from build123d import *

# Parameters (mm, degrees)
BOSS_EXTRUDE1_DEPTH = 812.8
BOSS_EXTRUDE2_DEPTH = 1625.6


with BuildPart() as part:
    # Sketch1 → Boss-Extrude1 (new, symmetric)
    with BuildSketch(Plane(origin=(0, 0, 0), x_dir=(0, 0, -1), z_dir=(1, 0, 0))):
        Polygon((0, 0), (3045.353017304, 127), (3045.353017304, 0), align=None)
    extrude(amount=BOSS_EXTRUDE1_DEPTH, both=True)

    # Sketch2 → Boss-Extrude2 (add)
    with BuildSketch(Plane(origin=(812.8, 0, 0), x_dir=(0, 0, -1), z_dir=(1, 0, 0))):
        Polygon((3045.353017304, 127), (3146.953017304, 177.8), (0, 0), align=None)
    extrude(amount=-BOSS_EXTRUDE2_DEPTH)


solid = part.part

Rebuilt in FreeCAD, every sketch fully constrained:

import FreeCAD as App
import Part
import Sketcher
Q = App.Units.Quantity

doc = App.newDocument("Part")
params = doc.addObject("Spreadsheet::Sheet", "Params")
for row, (alias, value) in enumerate([
    ("sketch1_width", "5 in"),
    ("sketch1_length", "120 in"),
    ("pad1_length", "64 in"),
    ("sketch2_length", "120 in"),
    ("pad2_length", "64 in"),
], start=1):
    params.set(f"A{row}", alias)
    params.set(f"B{row}", "=" + value)
    params.setAlias(f"B{row}", alias)

body = doc.addObject("PartDesign::Body", "Body")

# Sketch on YZ plane
sketch1 = doc.addObject("Sketcher::SketchObject", "Sketch")
body.addObject(sketch1)
sketch1.AttachmentSupport = (doc.YZ_Plane, [""])
sketch1.MapMode = "FlatFace"
sketch1.addGeometry([
    Part.LineSegment(App.Vector(127, -3045, 0), App.Vector(0, 0, 0)),
    Part.LineSegment(App.Vector(0, 0, 0), App.Vector(0, -3045, 0)),
    Part.LineSegment(App.Vector(0, -3045, 0), App.Vector(127, -3045, 0)),
], False)
sketch1.addConstraint([
    Sketcher.Constraint("Coincident", 0, 2, 1, 1),
    Sketcher.Constraint("Coincident", 1, 2, 2, 1),
    Sketcher.Constraint("Coincident", 2, 2, 0, 1),
    Sketcher.Constraint("Vertical", 1),
    Sketcher.Constraint("Horizontal", 2),
    Sketcher.Constraint("Coincident", 0, 2, -1, 1),
    Sketcher.Constraint("DistanceX", 2, 1, 2, 2, Q("5 in")),
    Sketcher.Constraint("Distance", 0, Q("120 in")),
])
sketch1.setExpression("Constraints[6]", "Params.sketch1_width")
sketch1.setExpression("Constraints[7]", "Params.sketch1_length")
pad1 = doc.addObject("PartDesign::Pad", "Pad")
body.addObject(pad1)
pad1.Profile = sketch1
pad1.setExpression("Length", "Params.pad1_length")
pad1.Midplane = True

# Sketch on YZ plane
sketch2 = doc.addObject("Sketcher::SketchObject", "Sketch001")
body.addObject(sketch2)
sketch2.AttachmentSupport = (doc.YZ_Plane, [""])
sketch2.MapMode = "FlatFace"
sketch2.AttachmentOffset = App.Placement(App.Vector(0, 0, 32 * 25.4), App.Rotation())
sketch2.addGeometry([
    Part.LineSegment(App.Vector(127, -3045, 0), App.Vector(178, -3147, 0)),
    Part.LineSegment(App.Vector(178, -3147, 0), App.Vector(0, 0, 0)),
    Part.LineSegment(App.Vector(0, 0, 0), App.Vector(127, -3045, 0)),
], False)
sketch2.addConstraint([
    Sketcher.Constraint("Coincident", 0, 2, 1, 1),
    Sketcher.Constraint("Coincident", 1, 2, 2, 1),
    Sketcher.Constraint("Coincident", 2, 2, 0, 1),
    Sketcher.Constraint("Coincident", 1, 2, -1, 1),
    Sketcher.Constraint("Distance", 2, Q("120 in")),
    Sketcher.Constraint("DistanceX", -1, 1, 0, 2, Q("7 in")),
    Sketcher.Constraint("DistanceX", -1, 1, 2, 2, Q("5 in")),
    Sketcher.Constraint("DistanceY", 0, 2, 2, 2, Q("4 in")),
])
sketch2.setExpression("Constraints[4]", "Params.sketch2_length")
pad2 = doc.addObject("PartDesign::Pad", "Pad001")
body.addObject(pad2)
pad2.Profile = sketch2
pad2.setExpression("Length", "Params.pad2_length")
pad2.Reversed = True

doc.recompute()
